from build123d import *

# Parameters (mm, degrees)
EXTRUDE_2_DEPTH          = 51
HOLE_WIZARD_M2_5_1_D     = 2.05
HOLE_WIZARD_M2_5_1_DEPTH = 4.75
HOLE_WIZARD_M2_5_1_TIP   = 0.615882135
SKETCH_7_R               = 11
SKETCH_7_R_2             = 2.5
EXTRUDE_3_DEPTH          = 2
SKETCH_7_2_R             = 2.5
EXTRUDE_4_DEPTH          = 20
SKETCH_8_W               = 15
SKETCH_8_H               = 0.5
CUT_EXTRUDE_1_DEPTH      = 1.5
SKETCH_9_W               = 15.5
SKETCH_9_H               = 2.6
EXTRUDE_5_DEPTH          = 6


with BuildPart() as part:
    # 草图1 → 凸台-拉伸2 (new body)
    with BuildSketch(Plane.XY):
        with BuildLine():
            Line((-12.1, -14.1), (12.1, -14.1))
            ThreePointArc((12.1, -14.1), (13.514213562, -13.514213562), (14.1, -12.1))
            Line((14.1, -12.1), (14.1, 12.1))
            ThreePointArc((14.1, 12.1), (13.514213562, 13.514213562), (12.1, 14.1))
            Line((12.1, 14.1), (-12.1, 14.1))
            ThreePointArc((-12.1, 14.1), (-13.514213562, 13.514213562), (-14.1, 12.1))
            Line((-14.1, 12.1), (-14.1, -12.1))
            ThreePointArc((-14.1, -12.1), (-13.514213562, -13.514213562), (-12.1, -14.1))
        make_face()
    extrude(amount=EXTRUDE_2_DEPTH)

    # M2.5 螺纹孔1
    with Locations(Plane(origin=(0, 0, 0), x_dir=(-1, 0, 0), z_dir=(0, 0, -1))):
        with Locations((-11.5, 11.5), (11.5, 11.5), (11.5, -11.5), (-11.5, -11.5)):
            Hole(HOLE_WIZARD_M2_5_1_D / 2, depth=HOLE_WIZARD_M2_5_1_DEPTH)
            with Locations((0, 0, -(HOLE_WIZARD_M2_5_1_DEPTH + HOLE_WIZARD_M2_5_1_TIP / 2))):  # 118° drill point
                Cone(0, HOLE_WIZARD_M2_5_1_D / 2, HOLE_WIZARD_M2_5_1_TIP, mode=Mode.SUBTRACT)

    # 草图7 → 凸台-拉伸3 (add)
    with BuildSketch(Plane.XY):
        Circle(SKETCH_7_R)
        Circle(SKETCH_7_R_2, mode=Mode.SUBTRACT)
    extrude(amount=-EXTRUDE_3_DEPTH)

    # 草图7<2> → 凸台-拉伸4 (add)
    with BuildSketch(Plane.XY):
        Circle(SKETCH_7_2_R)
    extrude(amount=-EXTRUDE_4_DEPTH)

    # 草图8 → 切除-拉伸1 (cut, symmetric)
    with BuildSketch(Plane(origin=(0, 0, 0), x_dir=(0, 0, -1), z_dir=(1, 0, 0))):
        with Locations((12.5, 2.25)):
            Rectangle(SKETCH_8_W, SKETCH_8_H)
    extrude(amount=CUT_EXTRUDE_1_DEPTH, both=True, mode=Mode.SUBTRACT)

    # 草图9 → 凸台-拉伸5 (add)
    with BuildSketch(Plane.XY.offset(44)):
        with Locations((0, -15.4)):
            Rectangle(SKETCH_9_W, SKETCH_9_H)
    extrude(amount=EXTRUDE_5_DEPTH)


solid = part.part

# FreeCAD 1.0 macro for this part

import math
import FreeCAD as App
import Part
import Sketcher

doc = App.newDocument("Part")
params = doc.addObject("Spreadsheet::Sheet", "Params")
for row, (alias, value) in enumerate([
    ("sketch1_radius", "2 mm"),
    ("sketch1_width", "24.2 mm"),
    ("pad1_length", "51 mm"),
    ("sketch2_diameter", "2.05 mm"),
    ("hole_diameter", "2.05 mm"),
    ("hole_depth", "4.75 mm"),
    ("sketch3_diameter", "22 mm"),
    ("sketch3_diameter2", "5 mm"),
    ("pad2_length", "2 mm"),
    ("sketch4_diameter", "5 mm"),
    ("pad3_length", "20 mm"),
    ("sketch5_height", "15 mm"),
    ("sketch5_width", "0.5 mm"),
    ("pocket1_length", "3 mm"),
    ("sketch6_width", "15.5 mm"),
    ("sketch6_height", "2.6 mm"),
    ("pad4_length", "6 mm"),
], start=1):
    params.set(f"A{row}", alias)
    params.set(f"B{row}", "=" + value)
    params.setAlias(f"B{row}", alias)

body = doc.addObject("PartDesign::Body", "Body")

sketch1 = body.newObject("Sketcher::SketchObject", "Sketch")
sketch1.AttachmentSupport = (doc.getObject("XY_Plane"), [""])
sketch1.MapMode = "FlatFace"
sketch1.addGeometry([
    Part.LineSegment(App.Vector(-12.1, -14.1, 0), App.Vector(12.1, -14.1, 0)),
    Part.ArcOfCircle(Part.Circle(App.Vector(12.1, -12.1, 0), App.Vector(0, 0, 1), 2), math.radians(-90), math.radians(0)),
    Part.LineSegment(App.Vector(14.1, -12.1, 0), App.Vector(14.1, 12.1, 0)),
    Part.ArcOfCircle(Part.Circle(App.Vector(12.1, 12.1, 0), App.Vector(0, 0, 1), 2), math.radians(0), math.radians(90)),
    Part.LineSegment(App.Vector(12.1, 14.1, 0), App.Vector(-12.1, 14.1, 0)),
    Part.ArcOfCircle(Part.Circle(App.Vector(-12.1, 12.1, 0), App.Vector(0, 0, 1), 2), math.radians(90), math.radians(180)),
    Part.LineSegment(App.Vector(-14.1, 12.1, 0), App.Vector(-14.1, -12.1, 0)),
    Part.ArcOfCircle(Part.Circle(App.Vector(-12.1, -12.1, 0), App.Vector(0, 0, 1), 2), math.radians(-180), math.radians(-90)),
], False)
sketch1.addConstraint([
    Sketcher.Constraint("Tangent", 0, 2, 1, 1),
    Sketcher.Constraint("Tangent", 1, 2, 2, 1),
    Sketcher.Constraint("Tangent", 2, 2, 3, 1),
    Sketcher.Constraint("Tangent", 3, 2, 4, 1),
    Sketcher.Constraint("Tangent", 4, 2, 5, 1),
    Sketcher.Constraint("Tangent", 5, 2, 6, 1),
    Sketcher.Constraint("Tangent", 6, 2, 7, 1),
    Sketcher.Constraint("Tangent", 7, 2, 0, 1),
    Sketcher.Constraint("Horizontal", 0),
    Sketcher.Constraint("Vertical", 2),
    Sketcher.Constraint("Horizontal", 4),
    Sketcher.Constraint("Vertical", 6),
    Sketcher.Constraint("Equal", 1, 3),
    Sketcher.Constraint("Equal", 3, 5),
    Sketcher.Constraint("Equal", 5, 7),
    Sketcher.Constraint("Symmetric", 1, 3, 5, 3, -1, 1),
    Sketcher.Constraint("Equal", 4, 2),
    Sketcher.Constraint("Radius", 1, 2.0),
    Sketcher.Constraint("DistanceX", 0, 1, 0, 2, 24.2),
])
sketch1.setExpression("Constraints[17]", "Params.sketch1_radius")
sketch1.setExpression("Constraints[18]", "Params.sketch1_width")
pad1 = body.newObject("PartDesign::Pad", "Pad")
pad1.Profile = sketch1
pad1.setExpression("Length", "Params.pad1_length")

sketch2 = body.newObject("Sketcher::SketchObject", "Sketch001")
sketch2.AttachmentSupport = (doc.getObject("XY_Plane"), [""])
sketch2.MapMode = "FlatFace"
sketch2.addGeometry([
    Part.Circle(App.Vector(11.5, 11.5, 0), App.Vector(0, 0, 1), 1),
    Part.Circle(App.Vector(-11.5, 11.5, 0), App.Vector(0, 0, 1), 1),
    Part.Circle(App.Vector(-11.5, -11.5, 0), App.Vector(0, 0, 1), 1),
    Part.Circle(App.Vector(11.5, -11.5, 0), App.Vector(0, 0, 1), 1),
], False)
sketch2.addConstraint([
    Sketcher.Constraint("Equal", 0, 1),
    Sketcher.Constraint("Equal", 1, 2),
    Sketcher.Constraint("Equal", 2, 3),
    Sketcher.Constraint("Symmetric", 0, 3, 2, 3, -1, 1),
    Sketcher.Constraint("Symmetric", 1, 3, 3, 3, -1, 1),
    Sketcher.Constraint("Symmetric", 0, 3, 1, 3, -2),
    Sketcher.Constraint("Diameter", 0, 2.05),
    Sketcher.Constraint("DistanceX", 1, 3, 0, 3, 23.0),
    Sketcher.Constraint("DistanceY", 2, 3, 1, 3, 23.0),
])
sketch2.setExpression("Constraints[6]", "Params.sketch2_diameter")
doc.recompute()
hole = body.newObject("PartDesign::Hole", "Hole")
hole.Profile = sketch2
hole.ThreadType = "None"
hole.setExpression("Diameter", "Params.hole_diameter")
hole.DepthType = "Dimension"
hole.setExpression("Depth", "Params.hole_depth")
hole.DrillPoint = "Angled"
hole.DrillPointAngle = 118
hole.Reversed = True

sketch3 = body.newObject("Sketcher::SketchObject", "Sketch002")
sketch3.AttachmentSupport = (doc.getObject("XY_Plane"), [""])
sketch3.MapMode = "FlatFace"
sketch3.addGeometry([
    Part.Circle(App.Vector(0, 0, 0), App.Vector(0, 0, 1), 11),
    Part.Circle(App.Vector(0, 0, 0), App.Vector(0, 0, 1), 2.5),
], False)
sketch3.addConstraint([
    Sketcher.Constraint("Coincident", 0, 3, -1, 1),
    Sketcher.Constraint("Coincident", 1, 3, -1, 1),
    Sketcher.Constraint("Diameter", 0, 22.0),
    Sketcher.Constraint("Diameter", 1, 5.0),
])
sketch3.setExpression("Constraints[2]", "Params.sketch3_diameter")
sketch3.setExpression("Constraints[3]", "Params.sketch3_diameter2")
pad2 = body.newObject("PartDesign::Pad", "Pad001")
pad2.Profile = sketch3
pad2.setExpression("Length", "Params.pad2_length")
pad2.Reversed = True

sketch4 = body.newObject("Sketcher::SketchObject", "Sketch003")
sketch4.AttachmentSupport = (doc.getObject("XY_Plane"), [""])
sketch4.MapMode = "FlatFace"
sketch4.addGeometry(Part.Circle(App.Vector(0, 0, 0), App.Vector(0, 0, 1), 2.5), False)
sketch4.addConstraint([
    Sketcher.Constraint("Coincident", 0, 3, -1, 1),
    Sketcher.Constraint("Diameter", 0, 5.0),
])
sketch4.setExpression("Constraints[1]", "Params.sketch4_diameter")
pad3 = body.newObject("PartDesign::Pad", "Pad002")
pad3.Profile = sketch4
pad3.setExpression("Length", "Params.pad3_length")
pad3.Reversed = True

sketch5 = body.newObject("Sketcher::SketchObject", "Sketch004")
sketch5.AttachmentSupport = (doc.getObject("YZ_Plane"), [""])
sketch5.MapMode = "FlatFace"
sketch5.addGeometry([
    Part.LineSegment(App.Vector(2.5, -5, 0), App.Vector(2, -5, 0)),
    Part.LineSegment(App.Vector(2, -5, 0), App.Vector(2, -20, 0)),
    Part.LineSegment(App.Vector(2, -20, 0), App.Vector(2.5, -20, 0)),
    Part.LineSegment(App.Vector(2.5, -20, 0), App.Vector(2.5, -5, 0)),
], False)
sketch5.addConstraint([
    Sketcher.Constraint("Coincident", 0, 2, 1, 1),
    Sketcher.Constraint("Coincident", 1, 2, 2, 1),
    Sketcher.Constraint("Coincident", 2, 2, 3, 1),
    Sketcher.Constraint("Coincident", 3, 2, 0, 1),
    Sketcher.Constraint("Horizontal", 0),
    Sketcher.Constraint("Vertical", 1),
    Sketcher.Constraint("Horizontal", 2),
    Sketcher.Constraint("Vertical", 3),
    Sketcher.Constraint("DistanceY", 1, 2, 1, 1, 15.0),
    Sketcher.Constraint("DistanceX", 0, 2, 0, 1, 0.5),
    Sketcher.Constraint("DistanceX", -1, 1, 0, 2, 2.0),
    Sketcher.Constraint("DistanceY", 0, 2, -1, 1, 5.0),
])
sketch5.setExpression("Constraints[8]", "Params.sketch5_height")
sketch5.setExpression("Constraints[9]", "Params.sketch5_width")
pocket1 = body.newObject("PartDesign::Pocket", "Pocket")
pocket1.Profile = sketch5
pocket1.setExpression("Length", "Params.pocket1_length")
pocket1.Midplane = True

sketch6 = body.newObject("Sketcher::SketchObject", "Sketch005")
sketch6.AttachmentSupport = (doc.getObject("XY_Plane"), [""])
sketch6.MapMode = "FlatFace"
sketch6.AttachmentOffset = App.Placement(App.Vector(0, 0, 44), App.Rotation())
sketch6.addGeometry([
    Part.LineSegment(App.Vector(-7.8, -14.1, 0), App.Vector(-7.8, -16.7, 0)),
    Part.LineSegment(App.Vector(-7.8, -16.7, 0), App.Vector(7.8, -16.7, 0)),
    Part.LineSegment(App.Vector(7.8, -16.7, 0), App.Vector(7.8, -14.1, 0)),
    Part.LineSegment(App.Vector(7.8, -14.1, 0), App.Vector(-7.8, -14.1, 0)),
], False)
sketch6.addConstraint([
    Sketcher.Constraint("Coincident", 0, 2, 1, 1),
    Sketcher.Constraint("Coincident", 1, 2, 2, 1),
    Sketcher.Constraint("Coincident", 2, 2, 3, 1),
    Sketcher.Constraint("Coincident", 3, 2, 0, 1),
    Sketcher.Constraint("Vertical", 0),
    Sketcher.Constraint("Horizontal", 1),
    Sketcher.Constraint("Vertical", 2),
    Sketcher.Constraint("Horizontal", 3),
    Sketcher.Constraint("DistanceX", 1, 1, 1, 2, 15.5),
    Sketcher.Constraint("DistanceY", 0, 2, 0, 1, 2.6),
    Sketcher.Constraint("DistanceY", 0, 2, -1, 1, 16.7),
    Sketcher.Constraint("DistanceX", 0, 2, -1, 1, 7.75),
])
sketch6.setExpression("Constraints[8]", "Params.sketch6_width")
sketch6.setExpression("Constraints[9]", "Params.sketch6_height")
pad4 = body.newObject("PartDesign::Pad", "Pad003")
pad4.Profile = sketch6
pad4.setExpression("Length", "Params.pad4_length")

doc.recompute()
